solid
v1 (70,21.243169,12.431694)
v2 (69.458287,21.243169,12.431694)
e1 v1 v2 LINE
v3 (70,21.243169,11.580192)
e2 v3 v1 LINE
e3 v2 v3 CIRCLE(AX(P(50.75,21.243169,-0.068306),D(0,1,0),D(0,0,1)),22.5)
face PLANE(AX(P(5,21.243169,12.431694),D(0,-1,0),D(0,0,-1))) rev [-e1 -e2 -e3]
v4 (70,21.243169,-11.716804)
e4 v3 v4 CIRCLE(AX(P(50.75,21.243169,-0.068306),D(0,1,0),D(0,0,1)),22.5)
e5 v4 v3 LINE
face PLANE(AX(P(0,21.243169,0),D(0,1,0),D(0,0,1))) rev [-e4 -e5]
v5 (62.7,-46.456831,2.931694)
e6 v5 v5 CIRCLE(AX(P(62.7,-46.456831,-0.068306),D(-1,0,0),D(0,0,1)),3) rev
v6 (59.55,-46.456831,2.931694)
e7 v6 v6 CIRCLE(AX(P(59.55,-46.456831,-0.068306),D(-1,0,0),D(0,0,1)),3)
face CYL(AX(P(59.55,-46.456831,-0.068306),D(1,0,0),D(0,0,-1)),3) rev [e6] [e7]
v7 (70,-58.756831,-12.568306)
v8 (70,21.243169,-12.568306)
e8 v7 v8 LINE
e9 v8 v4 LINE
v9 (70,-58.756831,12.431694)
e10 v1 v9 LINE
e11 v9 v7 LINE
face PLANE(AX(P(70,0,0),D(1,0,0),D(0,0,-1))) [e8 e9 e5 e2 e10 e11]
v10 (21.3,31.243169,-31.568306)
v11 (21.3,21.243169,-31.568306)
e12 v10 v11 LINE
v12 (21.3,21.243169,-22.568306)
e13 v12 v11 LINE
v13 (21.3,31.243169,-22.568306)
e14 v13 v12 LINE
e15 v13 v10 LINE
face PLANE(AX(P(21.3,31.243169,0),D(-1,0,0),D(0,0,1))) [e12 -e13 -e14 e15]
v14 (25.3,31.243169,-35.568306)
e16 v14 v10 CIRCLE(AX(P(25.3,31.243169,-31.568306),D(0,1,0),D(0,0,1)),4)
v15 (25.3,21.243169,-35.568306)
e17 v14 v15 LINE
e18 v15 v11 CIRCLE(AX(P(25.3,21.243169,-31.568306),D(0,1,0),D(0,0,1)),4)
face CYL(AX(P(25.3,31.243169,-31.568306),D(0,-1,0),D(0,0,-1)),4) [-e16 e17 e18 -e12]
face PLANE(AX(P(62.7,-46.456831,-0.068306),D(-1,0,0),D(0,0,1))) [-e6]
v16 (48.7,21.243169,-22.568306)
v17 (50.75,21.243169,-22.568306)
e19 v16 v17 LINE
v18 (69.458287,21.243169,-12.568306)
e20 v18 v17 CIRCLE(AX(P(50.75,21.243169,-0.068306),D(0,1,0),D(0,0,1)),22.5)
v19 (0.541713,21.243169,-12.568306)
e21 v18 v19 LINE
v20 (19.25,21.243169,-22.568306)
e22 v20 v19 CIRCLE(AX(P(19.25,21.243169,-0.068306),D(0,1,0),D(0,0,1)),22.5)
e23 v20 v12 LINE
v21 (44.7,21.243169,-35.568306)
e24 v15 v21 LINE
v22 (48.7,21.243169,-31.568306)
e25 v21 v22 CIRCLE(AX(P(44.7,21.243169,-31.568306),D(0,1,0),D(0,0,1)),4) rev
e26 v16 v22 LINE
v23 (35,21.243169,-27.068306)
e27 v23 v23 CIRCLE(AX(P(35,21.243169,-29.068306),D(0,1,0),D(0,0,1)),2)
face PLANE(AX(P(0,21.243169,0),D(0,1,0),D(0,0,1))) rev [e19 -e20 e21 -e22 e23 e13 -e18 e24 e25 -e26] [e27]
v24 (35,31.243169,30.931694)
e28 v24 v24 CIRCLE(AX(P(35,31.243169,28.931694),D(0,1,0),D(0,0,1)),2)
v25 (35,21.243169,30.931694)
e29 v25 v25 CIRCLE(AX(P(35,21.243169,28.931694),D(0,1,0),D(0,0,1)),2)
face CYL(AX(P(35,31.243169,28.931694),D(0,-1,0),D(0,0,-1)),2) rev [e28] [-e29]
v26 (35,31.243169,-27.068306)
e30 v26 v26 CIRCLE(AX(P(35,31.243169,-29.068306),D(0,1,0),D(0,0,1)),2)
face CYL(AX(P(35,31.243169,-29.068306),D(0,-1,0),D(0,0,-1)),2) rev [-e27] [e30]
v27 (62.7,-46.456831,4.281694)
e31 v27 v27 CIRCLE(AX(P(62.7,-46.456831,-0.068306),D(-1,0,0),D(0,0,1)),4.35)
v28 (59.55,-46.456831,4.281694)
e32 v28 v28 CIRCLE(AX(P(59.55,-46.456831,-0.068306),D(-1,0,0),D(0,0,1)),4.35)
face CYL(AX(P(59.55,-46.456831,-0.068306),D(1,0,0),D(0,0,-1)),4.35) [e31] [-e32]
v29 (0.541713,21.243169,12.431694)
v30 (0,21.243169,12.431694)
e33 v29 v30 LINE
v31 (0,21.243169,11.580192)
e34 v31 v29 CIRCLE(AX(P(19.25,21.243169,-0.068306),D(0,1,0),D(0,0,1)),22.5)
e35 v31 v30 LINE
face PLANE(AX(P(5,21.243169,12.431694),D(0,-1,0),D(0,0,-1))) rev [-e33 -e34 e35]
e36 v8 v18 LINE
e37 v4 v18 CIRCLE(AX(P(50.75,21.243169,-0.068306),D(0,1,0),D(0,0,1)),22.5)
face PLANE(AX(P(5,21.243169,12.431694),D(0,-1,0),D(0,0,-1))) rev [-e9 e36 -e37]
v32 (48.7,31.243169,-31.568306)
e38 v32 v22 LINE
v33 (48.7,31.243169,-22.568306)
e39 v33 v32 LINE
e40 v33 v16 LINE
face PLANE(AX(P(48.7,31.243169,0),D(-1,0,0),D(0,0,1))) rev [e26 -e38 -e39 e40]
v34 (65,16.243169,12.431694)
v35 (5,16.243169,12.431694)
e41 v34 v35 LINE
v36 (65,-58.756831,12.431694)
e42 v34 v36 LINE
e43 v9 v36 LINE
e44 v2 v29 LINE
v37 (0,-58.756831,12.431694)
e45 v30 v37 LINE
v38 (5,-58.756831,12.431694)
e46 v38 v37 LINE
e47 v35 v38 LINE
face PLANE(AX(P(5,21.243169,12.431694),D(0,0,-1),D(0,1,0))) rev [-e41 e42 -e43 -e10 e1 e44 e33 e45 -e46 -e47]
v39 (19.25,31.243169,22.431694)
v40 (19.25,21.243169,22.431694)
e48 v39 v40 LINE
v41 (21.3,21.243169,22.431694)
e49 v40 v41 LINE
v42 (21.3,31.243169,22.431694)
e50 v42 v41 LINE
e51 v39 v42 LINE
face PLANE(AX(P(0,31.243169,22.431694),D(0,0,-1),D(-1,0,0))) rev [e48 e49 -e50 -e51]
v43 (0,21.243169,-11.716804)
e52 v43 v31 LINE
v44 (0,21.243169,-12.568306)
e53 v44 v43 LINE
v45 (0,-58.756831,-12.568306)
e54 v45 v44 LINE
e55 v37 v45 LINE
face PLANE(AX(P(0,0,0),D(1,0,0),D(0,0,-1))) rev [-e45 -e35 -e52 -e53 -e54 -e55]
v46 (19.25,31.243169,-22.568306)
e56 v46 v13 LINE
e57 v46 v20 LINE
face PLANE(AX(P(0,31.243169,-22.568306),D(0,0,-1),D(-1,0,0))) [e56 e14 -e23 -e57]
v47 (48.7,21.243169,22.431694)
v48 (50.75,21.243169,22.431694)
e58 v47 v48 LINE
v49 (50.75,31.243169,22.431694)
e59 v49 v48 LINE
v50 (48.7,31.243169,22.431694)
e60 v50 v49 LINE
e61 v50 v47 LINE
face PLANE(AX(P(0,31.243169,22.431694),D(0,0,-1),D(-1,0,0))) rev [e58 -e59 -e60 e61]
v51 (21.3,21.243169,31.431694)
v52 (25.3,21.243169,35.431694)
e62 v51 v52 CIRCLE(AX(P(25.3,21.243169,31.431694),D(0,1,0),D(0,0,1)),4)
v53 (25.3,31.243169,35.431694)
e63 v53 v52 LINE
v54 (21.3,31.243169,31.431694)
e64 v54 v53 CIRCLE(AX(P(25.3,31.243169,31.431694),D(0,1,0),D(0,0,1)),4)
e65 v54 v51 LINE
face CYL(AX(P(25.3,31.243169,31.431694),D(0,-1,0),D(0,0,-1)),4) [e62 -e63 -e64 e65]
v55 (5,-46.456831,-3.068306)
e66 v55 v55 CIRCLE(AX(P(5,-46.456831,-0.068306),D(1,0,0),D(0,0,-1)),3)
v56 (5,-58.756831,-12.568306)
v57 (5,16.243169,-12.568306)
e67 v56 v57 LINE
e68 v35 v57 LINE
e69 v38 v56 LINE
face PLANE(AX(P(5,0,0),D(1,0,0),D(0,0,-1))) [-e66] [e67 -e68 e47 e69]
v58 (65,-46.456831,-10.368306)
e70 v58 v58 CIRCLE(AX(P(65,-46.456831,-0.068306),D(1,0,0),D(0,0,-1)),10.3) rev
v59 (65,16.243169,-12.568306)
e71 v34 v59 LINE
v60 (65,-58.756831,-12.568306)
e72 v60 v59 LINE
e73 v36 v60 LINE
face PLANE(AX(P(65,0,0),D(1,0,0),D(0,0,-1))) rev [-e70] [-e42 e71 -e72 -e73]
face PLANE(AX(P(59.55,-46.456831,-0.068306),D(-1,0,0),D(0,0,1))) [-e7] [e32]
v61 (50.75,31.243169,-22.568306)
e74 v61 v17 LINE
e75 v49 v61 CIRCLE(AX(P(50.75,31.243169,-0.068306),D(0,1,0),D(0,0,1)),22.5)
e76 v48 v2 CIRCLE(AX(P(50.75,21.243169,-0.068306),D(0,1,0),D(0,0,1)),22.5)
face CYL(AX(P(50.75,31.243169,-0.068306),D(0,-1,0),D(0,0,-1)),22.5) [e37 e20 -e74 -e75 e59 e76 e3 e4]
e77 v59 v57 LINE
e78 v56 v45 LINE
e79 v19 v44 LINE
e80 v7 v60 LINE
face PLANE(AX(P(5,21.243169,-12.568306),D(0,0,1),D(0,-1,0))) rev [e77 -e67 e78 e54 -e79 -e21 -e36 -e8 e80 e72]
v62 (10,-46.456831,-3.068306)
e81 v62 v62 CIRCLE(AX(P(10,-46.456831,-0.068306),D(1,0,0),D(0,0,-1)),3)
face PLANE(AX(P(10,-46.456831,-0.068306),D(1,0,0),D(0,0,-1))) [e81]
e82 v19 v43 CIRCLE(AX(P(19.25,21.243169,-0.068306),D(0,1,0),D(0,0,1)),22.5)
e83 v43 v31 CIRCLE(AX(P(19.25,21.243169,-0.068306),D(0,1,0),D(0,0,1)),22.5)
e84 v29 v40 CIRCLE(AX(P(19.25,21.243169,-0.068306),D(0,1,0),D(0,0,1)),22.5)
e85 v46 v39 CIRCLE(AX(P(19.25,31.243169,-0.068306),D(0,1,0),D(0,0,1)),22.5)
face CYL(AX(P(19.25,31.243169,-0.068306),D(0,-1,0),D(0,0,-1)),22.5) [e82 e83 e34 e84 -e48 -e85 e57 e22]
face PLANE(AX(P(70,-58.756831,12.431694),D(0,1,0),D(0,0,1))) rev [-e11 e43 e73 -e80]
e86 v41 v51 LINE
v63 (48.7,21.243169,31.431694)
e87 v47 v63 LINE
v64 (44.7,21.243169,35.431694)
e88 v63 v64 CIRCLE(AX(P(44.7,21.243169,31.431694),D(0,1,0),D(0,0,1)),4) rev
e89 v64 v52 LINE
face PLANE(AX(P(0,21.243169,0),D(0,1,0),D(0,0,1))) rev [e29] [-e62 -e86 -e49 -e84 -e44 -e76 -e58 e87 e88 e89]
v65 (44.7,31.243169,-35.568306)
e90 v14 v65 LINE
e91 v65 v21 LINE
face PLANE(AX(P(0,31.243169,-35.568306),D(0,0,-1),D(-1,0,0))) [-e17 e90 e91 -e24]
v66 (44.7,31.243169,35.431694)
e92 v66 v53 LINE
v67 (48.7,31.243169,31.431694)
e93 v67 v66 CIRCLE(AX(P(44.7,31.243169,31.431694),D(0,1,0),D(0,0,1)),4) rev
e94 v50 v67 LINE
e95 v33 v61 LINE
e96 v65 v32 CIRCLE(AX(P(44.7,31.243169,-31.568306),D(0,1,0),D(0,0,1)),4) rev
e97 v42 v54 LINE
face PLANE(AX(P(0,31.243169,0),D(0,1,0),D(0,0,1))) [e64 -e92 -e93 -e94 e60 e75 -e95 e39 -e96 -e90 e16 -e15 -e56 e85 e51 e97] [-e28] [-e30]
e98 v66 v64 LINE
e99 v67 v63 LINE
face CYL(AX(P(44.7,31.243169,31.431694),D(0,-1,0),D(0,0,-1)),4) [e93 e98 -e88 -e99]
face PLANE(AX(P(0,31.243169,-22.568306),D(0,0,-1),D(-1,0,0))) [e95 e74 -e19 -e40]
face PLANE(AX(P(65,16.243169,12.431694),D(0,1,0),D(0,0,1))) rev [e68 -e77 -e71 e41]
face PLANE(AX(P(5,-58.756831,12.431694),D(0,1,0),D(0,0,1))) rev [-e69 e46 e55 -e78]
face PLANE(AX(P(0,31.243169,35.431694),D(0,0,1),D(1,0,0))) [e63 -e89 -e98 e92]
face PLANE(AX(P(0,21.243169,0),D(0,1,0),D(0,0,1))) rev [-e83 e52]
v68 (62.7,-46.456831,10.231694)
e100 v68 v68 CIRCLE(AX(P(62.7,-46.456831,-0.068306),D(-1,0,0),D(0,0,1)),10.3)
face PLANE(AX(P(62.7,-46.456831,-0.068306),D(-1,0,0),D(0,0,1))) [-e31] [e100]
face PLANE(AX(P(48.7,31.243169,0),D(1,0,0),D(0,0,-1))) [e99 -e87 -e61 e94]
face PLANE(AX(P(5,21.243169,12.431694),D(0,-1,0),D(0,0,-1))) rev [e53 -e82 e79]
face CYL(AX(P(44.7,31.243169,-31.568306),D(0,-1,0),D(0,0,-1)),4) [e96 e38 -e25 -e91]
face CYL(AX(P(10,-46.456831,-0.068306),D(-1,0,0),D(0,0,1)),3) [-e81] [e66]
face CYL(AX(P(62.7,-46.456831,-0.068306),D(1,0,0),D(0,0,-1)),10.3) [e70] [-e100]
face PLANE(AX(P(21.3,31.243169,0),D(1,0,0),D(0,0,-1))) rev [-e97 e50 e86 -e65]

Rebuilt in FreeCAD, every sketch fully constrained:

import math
import FreeCAD as App
import Part
import Sketcher
from FreeCAD import Vector
Q = App.Units.Quantity

doc = App.newDocument("Part")
body = doc.addObject("PartDesign::Body", "Body")

# Sketch on YZ plane
sketch1 = body.newObject("Sketcher::SketchObject", "Sketch")
sketch1.AttachmentSupport = (doc.getObject("YZ_Plane"), [""])
sketch1.MapMode = "FlatFace"
sketch1.addGeometry([
    Part.LineSegment(Vector(21, 12, 0), Vector(-59, 12, 0)),
    Part.LineSegment(Vector(-59, 12, 0), Vector(-59, -13, 0)),
    Part.LineSegment(Vector(-59, -13, 0), Vector(21, -13, 0)),
    Part.LineSegment(Vector(21, -13, 0), Vector(21, 12, 0)),
], False)
sketch1.addConstraint([
    Sketcher.Constraint("Coincident", 0, 2, 1, 1),
    Sketcher.Constraint("Coincident", 1, 2, 2, 1),
    Sketcher.Constraint("Coincident", 2, 2, 3, 1),
    Sketcher.Constraint("Coincident", 3, 2, 0, 1),
    Sketcher.Constraint("Horizontal", 0),
    Sketcher.Constraint("Vertical", 1),
    Sketcher.Constraint("Horizontal", 2),
    Sketcher.Constraint("Vertical", 3),
    Sketcher.Constraint("DistanceX", 0, 2, 0, 1, Q("80 mm")),
    Sketcher.Constraint("DistanceY", 1, 2, 1, 1, Q("25 mm")),
    Sketcher.Constraint("DistanceX", 0, 2, -1, 1, Q("58.756831 mm")),
    Sketcher.Constraint("DistanceY", -1, 1, 0, 2, Q("12.431694 mm")),
])
pad1 = body.newObject("PartDesign::Pad", "Pad")
pad1.Profile = sketch1
pad1.Length = 5

# Sketch on YZ plane
sketch2 = body.newObject("Sketcher::SketchObject", "Sketch001")
sketch2.AttachmentSupport = (doc.getObject("YZ_Plane"), [""])
sketch2.MapMode = "FlatFace"
sketch2.AttachmentOffset = App.Placement(Vector(0, 0, 5), App.Rotation())
sketch2.addGeometry([
    Part.LineSegment(Vector(21, 12, 0), Vector(16, 12, 0)),
    Part.LineSegment(Vector(16, 12, 0), Vector(16, -13, 0)),
    Part.LineSegment(Vector(16, -13, 0), Vector(21, -13, 0)),
    Part.LineSegment(Vector(21, -13, 0), Vector(21, 12, 0)),
], False)
sketch2.addConstraint([
    Sketcher.Constraint("Coincident", 0, 2, 1, 1),
    Sketcher.Constraint("Coincident", 1, 2, 2, 1),
    Sketcher.Constraint("Coincident", 2, 2, 3, 1),
    Sketcher.Constraint("Coincident", 3, 2, 0, 1),
    Sketcher.Constraint("Horizontal", 0),
    Sketcher.Constraint("Vertical", 1),
    Sketcher.Constraint("Horizontal", 2),
    Sketcher.Constraint("Vertical", 3),
    Sketcher.Constraint("DistanceX", 0, 2, 0, 1, Q("5 mm")),
    Sketcher.Constraint("DistanceY", 1, 2, 1, 1, Q("25 mm")),
    Sketcher.Constraint("DistanceX", -1, 1, 0, 2, Q("16.243169 mm")),
    Sketcher.Constraint("DistanceY", -1, 1, 0, 2, Q("12.431694 mm")),
])
pad2 = body.newObject("PartDesign::Pad", "Pad001")
pad2.Profile = sketch2
pad2.Length = 60

# Sketch on YZ plane
sketch3 = body.newObject("Sketcher::SketchObject", "Sketch002")
sketch3.AttachmentSupport = (doc.getObject("YZ_Plane"), [""])
sketch3.MapMode = "FlatFace"
sketch3.AttachmentOffset = App.Placement(Vector(0, 0, 65), App.Rotation())
sketch3.addGeometry([
    Part.LineSegment(Vector(21, 12, 0), Vector(-59, 12, 0)),
    Part.LineSegment(Vector(-59, 12, 0), Vector(-59, -13, 0)),
    Part.LineSegment(Vector(-59, -13, 0), Vector(21, -13, 0)),
    Part.LineSegment(Vector(21, -13, 0), Vector(21, 12, 0)),
], False)
sketch3.addConstraint([
    Sketcher.Constraint("Coincident", 0, 2, 1, 1),
    Sketcher.Constraint("Coincident", 1, 2, 2, 1),
    Sketcher.Constraint("Coincident", 2, 2, 3, 1),
    Sketcher.Constraint("Coincident", 3, 2, 0, 1),
    Sketcher.Constraint("Horizontal", 0),
    Sketcher.Constraint("Vertical", 1),
    Sketcher.Constraint("Horizontal", 2),
    Sketcher.Constraint("Vertical", 3),
    Sketcher.Constraint("DistanceX", 0, 2, 0, 1, Q("80 mm")),
    Sketcher.Constraint("DistanceY", 1, 2, 1, 1, Q("25 mm")),
    Sketcher.Constraint("DistanceX", 0, 2, -1, 1, Q("58.756831 mm")),
    Sketcher.Constraint("DistanceY", -1, 1, 0, 2, Q("12.431694 mm")),
])
pad3 = body.newObject("PartDesign::Pad", "Pad002")
pad3.Profile = sketch3
pad3.Length = 5

# Sketch on YZ plane
sketch4 = body.newObject("Sketcher::SketchObject", "Sketch003")
sketch4.AttachmentSupport = (doc.getObject("YZ_Plane"), [""])
sketch4.MapMode = "FlatFace"
sketch4.AttachmentOffset = App.Placement(Vector(0, 0, 65), App.Rotation())
sketch4.addGeometry(Part.Circle(Vector(-46, 0, 0), Vector(0, 0, 1), 10), False)
sketch4.addConstraint([
    Sketcher.Constraint("Diameter", 0, Q("20.6 mm")),
    Sketcher.Constraint("DistanceX", 0, 3, -1, 1, Q("46.456831 mm")),
    Sketcher.Constraint("DistanceY", 0, 3, -1, 1, Q("0.068306 mm")),
])
pad4 = body.newObject("PartDesign::Pad", "Pad003")
pad4.Profile = sketch4
pad4.Length = 2.3
pad4.Reversed = True

# Sketch on YZ plane
sketch5 = body.newObject("Sketcher::SketchObject", "Sketch004")
sketch5.AttachmentSupport = (doc.getObject("YZ_Plane"), [""])
sketch5.MapMode = "FlatFace"
sketch5.AttachmentOffset = App.Placement(Vector(0, 0, 62.7), App.Rotation())
sketch5.addGeometry([
    Part.Circle(Vector(-46.5, -0.1, 0), Vector(0, 0, 1), 4.3),
    Part.Circle(Vector(-46.5, -0.1, 0), Vector(0, 0, 1), 3),
], False)
sketch5.addConstraint([
    Sketcher.Constraint("Coincident", 1, 3, 0, 3),
    Sketcher.Constraint("Diameter", 1, Q("6 mm")),
    Sketcher.Constraint("Diameter", 0, Q("8.7 mm")),
    Sketcher.Constraint("DistanceX", 0, 3, -1, 1, Q("46.456831 mm")),
    Sketcher.Constraint("DistanceY", 0, 3, -1, 1, Q("0.068306 mm")),
])
pad5 = body.newObject("PartDesign::Pad", "Pad004")
pad5.Profile = sketch5
pad5.Length = 3.15
pad5.Reversed = True

# Sketch on YZ plane
sketch6 = body.newObject("Sketcher::SketchObject", "Sketch005")
sketch6.AttachmentSupport = (doc.getObject("YZ_Plane"), [""])
sketch6.MapMode = "FlatFace"
sketch6.AttachmentOffset = App.Placement(Vector(0, 0, 10), App.Rotation())
sketch6.addGeometry(Part.Circle(Vector(-46.5, -0.1, 0), Vector(0, 0, 1), 3), False)
sketch6.addConstraint([
    Sketcher.Constraint("Diameter", 0, Q("6 mm")),
    Sketcher.Constraint("DistanceX", 0, 3, -1, 1, Q("46.456831 mm")),
    Sketcher.Constraint("DistanceY", 0, 3, -1, 1, Q("0.068306 mm")),
])
pad6 = body.newObject("PartDesign::Pad", "Pad005")
pad6.Profile = sketch6
pad6.Length = 5
pad6.Reversed = True

# Sketch on XZ plane
sketch7 = body.newObject("Sketcher::SketchObject", "Sketch006")
sketch7.AttachmentSupport = (doc.getObject("XZ_Plane"), [""])
sketch7.MapMode = "FlatFace"
sketch7.AttachmentOffset = App.Placement(Vector(0, 0, -21.243169), App.Rotation())
sketch7.addGeometry([
    Part.LineSegment(Vector(21.3, -22.6, 0), Vector(19.2, -22.6, 0)),  # 0
    Part.ArcOfCircle(Part.Circle(Vector(19.2, -0.1, 0), Vector(0, 0, 1), 22.5), math.radians(90), math.radians(270)),  # 1
    Part.LineSegment(Vector(19.2, 22.4, 0), Vector(21.3, 22.4, 0)),  # 2
    Part.LineSegment(Vector(21.3, 22.4, 0), Vector(21.3, 31.4, 0)),  # 3
    Part.ArcOfCircle(Part.Circle(Vector(25.3, 31.4, 0), Vector(0, 0, 1), 4), math.radians(90), math.radians(180)),  # 4
    Part.LineSegment(Vector(25.3, 35.4, 0), Vector(44.7, 35.4, 0)),  # 5
    Part.ArcOfCircle(Part.Circle(Vector(44.7, 31.4, 0), Vector(0, 0, 1), 4), math.radians(0), math.radians(90)),  # 6
    Part.LineSegment(Vector(48.7, 31.4, 0), Vector(48.7, 22.4, 0)),  # 7
    Part.LineSegment(Vector(48.7, 22.4, 0), Vector(50.8, 22.4, 0)),  # 8
    Part.ArcOfCircle(Part.Circle(Vector(50.8, -0.1, 0), Vector(0, 0, 1), 22.5), math.radians(-90), math.radians(90)),  # 9
    Part.LineSegment(Vector(50.8, -22.6, 0), Vector(48.7, -22.6, 0)),  # 10
    Part.LineSegment(Vector(48.7, -22.6, 0), Vector(48.7, -31.6, 0)),  # 11
    Part.ArcOfCircle(Part.Circle(Vector(44.7, -31.6, 0), Vector(0, 0, 1), 4), math.radians(-90), math.radians(0)),  # 12
    Part.LineSegment(Vector(44.7, -35.6, 0), Vector(25.3, -35.6, 0)),  # 13
    Part.ArcOfCircle(Part.Circle(Vector(25.3, -31.6, 0), Vector(0, 0, 1), 4), math.radians(180), math.radians(270)),  # 14
    Part.LineSegment(Vector(21.3, -31.6, 0), Vector(21.3, -22.6, 0)),  # 15
    Part.Circle(Vector(35, -29.1, 0), Vector(0, 0, 1), 2),  # 16
    Part.Circle(Vector(35, 28.9, 0), Vector(0, 0, 1), 2),  # 17
], False)
sketch7.addConstraint([
    Sketcher.Constraint("Tangent", 0, 2, 1, 2),
    Sketcher.Constraint("Tangent", 1, 1, 2, 1),
    Sketcher.Constraint("Coincident", 2, 2, 3, 1),
    Sketcher.Constraint("Tangent", 3, 2, 4, 2),
    Sketcher.Constraint("Tangent", 4, 1, 5, 1),
    Sketcher.Constraint("Tangent", 5, 2, 6, 2),
    Sketcher.Constraint("Tangent", 6, 1, 7, 1),
    Sketcher.Constraint("Coincident", 7, 2, 8, 1),
    Sketcher.Constraint("Tangent", 8, 2, 9, 2),
    Sketcher.Constraint("Tangent", 9, 1, 10, 1),
    Sketcher.Constraint("Coincident", 10, 2, 11, 1),
    Sketcher.Constraint("Tangent", 11, 2, 12, 2),
    Sketcher.Constraint("Tangent", 12, 1, 13, 1),
    Sketcher.Constraint("Tangent", 13, 2, 14, 2),
    Sketcher.Constraint("Tangent", 14, 1, 15, 1),
    Sketcher.Constraint("Coincident", 15, 2, 0, 1),
    Sketcher.Constraint("Horizontal", 0),
    Sketcher.Constraint("Horizontal", 2),
    Sketcher.Constraint("Vertical", 3),
    Sketcher.Constraint("Horizontal", 5),
    Sketcher.Constraint("Vertical", 7),
    Sketcher.Constraint("Horizontal", 8),
    Sketcher.Constraint("Horizontal", 10),
    Sketcher.Constraint("Vertical", 11),
    Sketcher.Constraint("Horizontal", 13),
    Sketcher.Constraint("Vertical", 15),
    Sketcher.Constraint("Equal", 4, 6),
    Sketcher.Constraint("Equal", 1, 9),
    Sketcher.Constraint("Equal", 6, 12),
    Sketcher.Constraint("Equal", 12, 14),
    Sketcher.Constraint("Equal", 16, 17),
    Sketcher.Constraint("Horizontal", 1, 3, 9, 3),
    Sketcher.Constraint("Vertical", 6, 3, 12, 3),
    Sketcher.Constraint("Vertical", 4, 3, 14, 3),
    Sketcher.Constraint("Vertical", 16, 3, 17, 3),
    Sketcher.Constraint("Equal", 2, 8),
    Sketcher.Constraint("Equal", 7, 11),
    Sketcher.Constraint("Diameter", 16, Q("4 mm")),
    Sketcher.Constraint("Radius", 4, Q("4 mm")),
    Sketcher.Constraint("Radius", 1, Q("22.5 mm")),
    Sketcher.Constraint("DistanceY", 3, 1, 3, 2, Q("9 mm")),
    Sketcher.Constraint("DistanceX", 5, 1, 5, 2, Q("19.4 mm")),
    Sketcher.Constraint("DistanceX", -1, 1, 16, 3, Q("35 mm")),
    Sketcher.Constraint("DistanceY", 16, 3, 1, 3, Q("29 mm")),
    Sketcher.Constraint("DistanceY", 1, 3, 17, 3, Q("29 mm")),
    Sketcher.Constraint("DistanceX", 0, 2, 0, 1, Q("2.05 mm")),
    Sketcher.Constraint("DistanceX", -1, 1, 4, 3, Q("25.3 mm")),
    Sketcher.Constraint("DistanceY", 1, 3, -1, 1, Q("0.068306 mm")),
])
pad7 = body.newObject("PartDesign::Pad", "Pad006")
pad7.Profile = sketch7
pad7.Length = 10
pad7.Reversed = True

doc.recompute()
